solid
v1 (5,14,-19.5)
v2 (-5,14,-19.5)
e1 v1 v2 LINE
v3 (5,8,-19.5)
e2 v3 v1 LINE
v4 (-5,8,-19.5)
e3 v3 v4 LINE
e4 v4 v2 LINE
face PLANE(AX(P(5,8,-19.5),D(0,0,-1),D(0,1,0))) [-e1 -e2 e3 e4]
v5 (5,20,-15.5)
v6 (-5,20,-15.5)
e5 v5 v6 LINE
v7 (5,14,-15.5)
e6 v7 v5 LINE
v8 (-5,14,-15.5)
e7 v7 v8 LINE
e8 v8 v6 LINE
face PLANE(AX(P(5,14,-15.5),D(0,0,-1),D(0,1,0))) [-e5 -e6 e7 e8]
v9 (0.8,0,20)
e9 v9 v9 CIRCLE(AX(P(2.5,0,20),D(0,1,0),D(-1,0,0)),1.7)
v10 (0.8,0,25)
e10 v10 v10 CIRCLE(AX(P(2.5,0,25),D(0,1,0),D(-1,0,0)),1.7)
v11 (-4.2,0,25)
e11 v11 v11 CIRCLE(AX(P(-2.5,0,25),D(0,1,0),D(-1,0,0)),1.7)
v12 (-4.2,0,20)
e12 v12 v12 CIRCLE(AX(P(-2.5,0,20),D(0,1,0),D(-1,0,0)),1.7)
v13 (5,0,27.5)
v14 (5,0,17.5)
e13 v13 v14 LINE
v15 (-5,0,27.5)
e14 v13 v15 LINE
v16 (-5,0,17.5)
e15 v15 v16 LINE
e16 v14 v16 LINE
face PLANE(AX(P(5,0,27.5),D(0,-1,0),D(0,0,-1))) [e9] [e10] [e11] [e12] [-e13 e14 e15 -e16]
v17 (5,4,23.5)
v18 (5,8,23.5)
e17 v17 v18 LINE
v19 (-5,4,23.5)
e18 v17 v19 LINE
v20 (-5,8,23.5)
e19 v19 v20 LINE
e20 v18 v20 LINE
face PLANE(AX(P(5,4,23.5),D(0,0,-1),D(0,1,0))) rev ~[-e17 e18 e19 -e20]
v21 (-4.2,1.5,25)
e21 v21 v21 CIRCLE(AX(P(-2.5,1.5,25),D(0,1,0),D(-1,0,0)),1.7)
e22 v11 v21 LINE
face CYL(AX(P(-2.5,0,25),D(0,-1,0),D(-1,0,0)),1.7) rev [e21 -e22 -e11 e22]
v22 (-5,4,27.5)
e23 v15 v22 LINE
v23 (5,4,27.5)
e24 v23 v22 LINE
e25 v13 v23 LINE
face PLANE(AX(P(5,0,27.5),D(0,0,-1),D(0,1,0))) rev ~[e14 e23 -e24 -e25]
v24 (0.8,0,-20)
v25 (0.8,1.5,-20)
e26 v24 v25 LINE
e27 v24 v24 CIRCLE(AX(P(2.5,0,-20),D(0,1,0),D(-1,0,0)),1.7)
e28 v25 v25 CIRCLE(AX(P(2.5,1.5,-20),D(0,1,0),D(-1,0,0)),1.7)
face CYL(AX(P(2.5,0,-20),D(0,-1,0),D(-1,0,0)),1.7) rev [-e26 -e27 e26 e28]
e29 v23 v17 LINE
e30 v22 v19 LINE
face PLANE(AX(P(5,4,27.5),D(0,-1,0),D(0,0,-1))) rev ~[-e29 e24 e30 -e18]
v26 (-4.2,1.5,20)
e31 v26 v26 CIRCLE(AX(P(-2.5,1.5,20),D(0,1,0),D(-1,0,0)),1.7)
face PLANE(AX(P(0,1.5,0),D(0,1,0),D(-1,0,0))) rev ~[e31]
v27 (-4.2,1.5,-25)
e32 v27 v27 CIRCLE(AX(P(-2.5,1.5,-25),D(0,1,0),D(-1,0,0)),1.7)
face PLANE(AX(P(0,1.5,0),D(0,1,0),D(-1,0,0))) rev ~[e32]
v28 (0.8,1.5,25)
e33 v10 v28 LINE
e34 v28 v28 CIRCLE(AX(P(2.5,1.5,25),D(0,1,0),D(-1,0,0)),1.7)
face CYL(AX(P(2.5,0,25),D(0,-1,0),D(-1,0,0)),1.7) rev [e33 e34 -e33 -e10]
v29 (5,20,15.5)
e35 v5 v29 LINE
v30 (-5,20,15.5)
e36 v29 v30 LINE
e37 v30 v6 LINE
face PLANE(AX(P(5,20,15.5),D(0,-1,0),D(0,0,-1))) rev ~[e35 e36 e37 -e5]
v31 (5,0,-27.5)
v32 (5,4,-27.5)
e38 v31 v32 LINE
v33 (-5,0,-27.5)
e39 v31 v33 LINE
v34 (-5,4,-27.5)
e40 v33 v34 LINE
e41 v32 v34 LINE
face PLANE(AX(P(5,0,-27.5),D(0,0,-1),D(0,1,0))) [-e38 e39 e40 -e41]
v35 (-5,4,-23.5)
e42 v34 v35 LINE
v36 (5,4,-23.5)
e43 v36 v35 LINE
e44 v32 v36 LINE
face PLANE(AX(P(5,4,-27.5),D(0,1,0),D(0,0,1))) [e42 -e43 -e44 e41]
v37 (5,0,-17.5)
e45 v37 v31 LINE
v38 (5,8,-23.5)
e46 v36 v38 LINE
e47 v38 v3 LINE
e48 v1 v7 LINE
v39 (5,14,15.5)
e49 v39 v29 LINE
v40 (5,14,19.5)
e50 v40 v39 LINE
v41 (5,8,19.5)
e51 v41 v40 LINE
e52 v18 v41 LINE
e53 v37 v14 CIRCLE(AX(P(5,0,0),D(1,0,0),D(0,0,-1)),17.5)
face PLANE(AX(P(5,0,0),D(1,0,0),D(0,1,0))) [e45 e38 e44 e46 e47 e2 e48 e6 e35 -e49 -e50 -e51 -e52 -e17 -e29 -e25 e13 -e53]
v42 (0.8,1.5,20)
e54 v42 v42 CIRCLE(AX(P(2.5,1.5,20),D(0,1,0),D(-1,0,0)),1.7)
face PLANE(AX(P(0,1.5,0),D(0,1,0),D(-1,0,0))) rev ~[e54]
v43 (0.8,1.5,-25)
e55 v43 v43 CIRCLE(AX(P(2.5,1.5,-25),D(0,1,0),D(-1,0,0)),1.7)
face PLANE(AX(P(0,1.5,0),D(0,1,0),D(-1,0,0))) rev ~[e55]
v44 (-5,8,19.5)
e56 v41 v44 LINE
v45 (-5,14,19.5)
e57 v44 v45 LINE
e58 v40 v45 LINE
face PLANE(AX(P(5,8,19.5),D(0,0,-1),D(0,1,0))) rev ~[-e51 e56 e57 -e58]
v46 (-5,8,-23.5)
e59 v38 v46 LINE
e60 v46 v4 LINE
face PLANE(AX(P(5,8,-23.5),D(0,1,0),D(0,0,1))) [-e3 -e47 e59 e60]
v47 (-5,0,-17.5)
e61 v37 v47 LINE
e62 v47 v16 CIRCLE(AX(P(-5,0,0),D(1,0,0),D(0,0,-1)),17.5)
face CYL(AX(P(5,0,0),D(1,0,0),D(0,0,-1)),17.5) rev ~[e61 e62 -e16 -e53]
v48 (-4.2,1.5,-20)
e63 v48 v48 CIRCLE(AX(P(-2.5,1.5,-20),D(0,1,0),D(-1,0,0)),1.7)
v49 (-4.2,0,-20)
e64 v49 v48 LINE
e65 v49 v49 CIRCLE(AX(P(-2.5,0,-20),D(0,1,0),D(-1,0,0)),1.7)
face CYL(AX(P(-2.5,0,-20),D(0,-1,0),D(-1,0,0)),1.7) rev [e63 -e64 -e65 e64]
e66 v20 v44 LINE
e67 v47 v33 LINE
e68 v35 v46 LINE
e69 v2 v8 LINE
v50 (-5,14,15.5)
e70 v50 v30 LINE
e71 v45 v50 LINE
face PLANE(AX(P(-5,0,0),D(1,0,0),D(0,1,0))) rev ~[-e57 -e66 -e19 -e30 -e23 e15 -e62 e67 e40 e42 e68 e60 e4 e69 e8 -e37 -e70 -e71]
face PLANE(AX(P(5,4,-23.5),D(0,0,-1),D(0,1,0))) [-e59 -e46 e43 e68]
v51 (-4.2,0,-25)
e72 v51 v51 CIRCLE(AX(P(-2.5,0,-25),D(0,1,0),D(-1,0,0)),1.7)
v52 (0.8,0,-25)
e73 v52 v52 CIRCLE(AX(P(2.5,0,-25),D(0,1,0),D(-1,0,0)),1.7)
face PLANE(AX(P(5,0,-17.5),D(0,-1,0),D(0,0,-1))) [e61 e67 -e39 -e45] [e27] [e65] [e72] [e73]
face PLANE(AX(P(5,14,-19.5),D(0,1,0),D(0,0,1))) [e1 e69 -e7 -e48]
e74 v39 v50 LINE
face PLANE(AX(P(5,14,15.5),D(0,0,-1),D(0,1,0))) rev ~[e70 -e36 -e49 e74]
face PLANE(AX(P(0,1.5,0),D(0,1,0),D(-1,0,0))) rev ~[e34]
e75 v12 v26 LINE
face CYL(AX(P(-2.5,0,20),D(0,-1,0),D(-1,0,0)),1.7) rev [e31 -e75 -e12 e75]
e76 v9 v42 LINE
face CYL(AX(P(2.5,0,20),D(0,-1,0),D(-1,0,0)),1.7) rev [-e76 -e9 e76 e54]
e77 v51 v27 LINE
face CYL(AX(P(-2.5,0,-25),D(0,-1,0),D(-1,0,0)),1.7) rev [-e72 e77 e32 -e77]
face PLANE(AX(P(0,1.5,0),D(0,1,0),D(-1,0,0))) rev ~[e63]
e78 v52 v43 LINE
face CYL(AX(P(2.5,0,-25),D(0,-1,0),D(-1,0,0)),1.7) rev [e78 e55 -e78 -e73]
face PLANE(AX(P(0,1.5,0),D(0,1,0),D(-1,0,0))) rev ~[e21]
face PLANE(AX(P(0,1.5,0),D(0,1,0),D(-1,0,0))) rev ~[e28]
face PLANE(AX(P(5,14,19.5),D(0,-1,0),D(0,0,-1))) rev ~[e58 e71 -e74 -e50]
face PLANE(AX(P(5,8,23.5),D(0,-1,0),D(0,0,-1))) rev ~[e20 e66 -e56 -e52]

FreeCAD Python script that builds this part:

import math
import FreeCAD as App
import Part
import Sketcher
from FreeCAD import Vector
Q = App.Units.Quantity

doc = App.newDocument("Part")
body = doc.addObject("PartDesign::Body", "Body")

sketch1 = body.newObject("Sketcher::SketchObject", "Sketch")
sketch1.AttachmentSupport = (doc.getObject("YZ_Plane"), [""])
sketch1.MapMode = "FlatFace"
sketch1.AttachmentOffset = App.Placement(Vector(0, 0, 5), App.Rotation())
sketch1.addGeometry([
    Part.LineSegment(Vector(4, 27.5, 0), Vector(0, 27.5, 0)),
    Part.LineSegment(Vector(0, 27.5, 0), Vector(0, 17.5, 0)),
    Part.ArcOfCircle(Part.Circle(Vector(0, 0, 0), Vector(0, 0, 1), 17.5), math.radians(-90), math.radians(90)),
    Part.LineSegment(Vector(0, -17.5, 0), Vector(0, -27.5, 0)),
    Part.LineSegment(Vector(0, -27.5, 0), Vector(4, -27.5, 0)),
    Part.LineSegment(Vector(4, -27.5, 0), Vector(4, -23.5, 0)),
    Part.LineSegment(Vector(4, -23.5, 0), Vector(8, -23.5, 0)),
    Part.LineSegment(Vector(8, -23.5, 0), Vector(8, -19.5, 0)),
    Part.LineSegment(Vector(8, -19.5, 0), Vector(14, -19.5, 0)),
    Part.LineSegment(Vector(14, -19.5, 0), Vector(14, -15.5, 0)),
    Part.LineSegment(Vector(14, -15.5, 0), Vector(20, -15.5, 0)),
    Part.LineSegment(Vector(20, -15.5, 0), Vector(20, 15.5, 0)),
    Part.LineSegment(Vector(20, 15.5, 0), Vector(14, 15.5, 0)),
    Part.LineSegment(Vector(14, 15.5, 0), Vector(14, 19.5, 0)),
    Part.LineSegment(Vector(14, 19.5, 0), Vector(8, 19.5, 0)),
    Part.LineSegment(Vector(8, 19.5, 0), Vector(8, 23.5, 0)),
    Part.LineSegment(Vector(8, 23.5, 0), Vector(4, 23.5, 0)),
    Part.LineSegment(Vector(4, 23.5, 0), Vector(4, 27.5, 0)),
], False)
sketch1.addConstraint([
    Sketcher.Constraint("Coincident", 0, 2, 1, 1),
    Sketcher.Constraint("Coincident", 1, 2, 2, 2),
    Sketcher.Constraint("Coincident", 2, 1, 3, 1),
    Sketcher.Constraint("Coincident", 3, 2, 4, 1),
    Sketcher.Constraint("Coincident", 4, 2, 5, 1),
    Sketcher.Constraint("Coincident", 5, 2, 6, 1),
    Sketcher.Constraint("Coincident", 6, 2, 7, 1),
    Sketcher.Constraint("Coincident", 7, 2, 8, 1),
    Sketcher.Constraint("Coincident", 8, 2, 9, 1),
    Sketcher.Constraint("Coincident", 9, 2, 10, 1),
    Sketcher.Constraint("Coincident", 10, 2, 11, 1),
    Sketcher.Constraint("Coincident", 11, 2, 12, 1),
    Sketcher.Constraint("Coincident", 12, 2, 13, 1),
    Sketcher.Constraint("Coincident", 13, 2, 14, 1),
    Sketcher.Constraint("Coincident", 14, 2, 15, 1),
    Sketcher.Constraint("Coincident", 15, 2, 16, 1),
    Sketcher.Constraint("Coincident", 16, 2, 17, 1),
    Sketcher.Constraint("Coincident", 17, 2, 0, 1),
    Sketcher.Constraint("Horizontal", 0),
    Sketcher.Constraint("Vertical", 1),
    Sketcher.Constraint("Vertical", 3),
    Sketcher.Constraint("Horizontal", 4),
    Sketcher.Constraint("Vertical", 5),
    Sketcher.Constraint("Horizontal", 6),
    Sketcher.Constraint("Vertical", 7),
    Sketcher.Constraint("Horizontal", 8),
    Sketcher.Constraint("Vertical", 9),
    Sketcher.Constraint("Horizontal", 10),
    Sketcher.Constraint("Vertical", 11),
    Sketcher.Constraint("Horizontal", 12),
    Sketcher.Constraint("Vertical", 13),
    Sketcher.Constraint("Horizontal", 14),
    Sketcher.Constraint("Vertical", 15),
    Sketcher.Constraint("Horizontal", 16),
    Sketcher.Constraint("Vertical", 17),
    Sketcher.Constraint("Coincident", 2, 3, -1, 1),
    Sketcher.Constraint("Symmetric", 0, 2, 3, 2, -1, 1),
    Sketcher.Constraint("Symmetric", 9, 2, 12, 2, -1),
    Sketcher.Constraint("Symmetric", 7, 2, 14, 2, -1),
    Sketcher.Constraint("Symmetric", 5, 2, 16, 2, -1),
    Sketcher.Constraint("PointOnObject", 0, 2, -2),
    Sketcher.Constraint("Equal", 4, 6),
    Sketcher.Constraint("Equal", 8, 10),
    Sketcher.Constraint("Equal", 16, 5),
    Sketcher.Constraint("Equal", 5, 7),
    Sketcher.Constraint("Equal", 7, 9),
    Sketcher.Constraint("DistanceX", 0, 2, 0, 1, Q("4 mm")),
    Sketcher.Constraint("DistanceX", 8, 1, 8, 2, Q("6 mm")),
    Sketcher.Constraint("DistanceY", 5, 2, 2, 1, Q("6 mm")),
    Sketcher.Constraint("Radius", 2, Q("17.5 mm")),
])
pad1 = body.newObject("PartDesign::Pad", "Pad")
pad1.Profile = sketch1
pad1.Length = 10
pad1.Reversed = True

sketch2 = body.newObject("Sketcher::SketchObject", "Sketch001")
sketch2.AttachmentSupport = (doc.getObject("XZ_Plane"), [""])
sketch2.MapMode = "FlatFace"
sketch2.addGeometry([
    Part.Circle(Vector(-2.5, 25, 0), Vector(0, 0, 1), 1.7),
    Part.Circle(Vector(-2.5, 20, 0), Vector(0, 0, 1), 1.7),
    Part.Circle(Vector(2.5, 25, 0), Vector(0, 0, 1), 1.7),
    Part.Circle(Vector(2.5, 20, 0), Vector(0, 0, 1), 1.7),
    Part.Circle(Vector(-2.5, -25, 0), Vector(0, 0, 1), 1.7),
    Part.Circle(Vector(-2.5, -20, 0), Vector(0, 0, 1), 1.7),
    Part.Circle(Vector(2.5, -25, 0), Vector(0, 0, 1), 1.7),
    Part.Circle(Vector(2.5, -20, 0), Vector(0, 0, 1), 1.7),
], False)
sketch2.addConstraint([
    Sketcher.Constraint("Equal", 0, 1),
    Sketcher.Constraint("Equal", 1, 2),
    Sketcher.Constraint("Equal", 2, 3),
    Sketcher.Constraint("Equal", 3, 4),
    Sketcher.Constraint("Equal", 4, 5),
    Sketcher.Constraint("Equal", 5, 6),
    Sketcher.Constraint("Equal", 6, 7),
    Sketcher.Constraint("Symmetric", 2, 3, 4, 3, -1, 1),
    Sketcher.Constraint("Symmetric", 3, 3, 5, 3, -1, 1),
    Sketcher.Constraint("Symmetric", 0, 3, 6, 3, -1, 1),
    Sketcher.Constraint("Symmetric", 1, 3, 7, 3, -1, 1),
    Sketcher.Constraint("Symmetric", 0, 3, 2, 3, -2),
    Sketcher.Constraint("Symmetric", 1, 3, 3, 3, -2),
    Sketcher.Constraint("Vertical", 0, 3, 1, 3),
    Sketcher.Constraint("Diameter", 0, Q("3.4 mm")),
    Sketcher.Constraint("DistanceY", 1, 3, 0, 3, Q("5 mm")),
    Sketcher.Constraint("DistanceX", 0, 3, 2, 3, Q("5 mm")),
    Sketcher.Constraint("DistanceY", -1, 1, 0, 3, Q("25 mm")),
])
pocket1 = body.newObject("PartDesign::Pocket", "Pocket")
pocket1.Profile = sketch2
pocket1.Length = 1.5

doc.recompute()
